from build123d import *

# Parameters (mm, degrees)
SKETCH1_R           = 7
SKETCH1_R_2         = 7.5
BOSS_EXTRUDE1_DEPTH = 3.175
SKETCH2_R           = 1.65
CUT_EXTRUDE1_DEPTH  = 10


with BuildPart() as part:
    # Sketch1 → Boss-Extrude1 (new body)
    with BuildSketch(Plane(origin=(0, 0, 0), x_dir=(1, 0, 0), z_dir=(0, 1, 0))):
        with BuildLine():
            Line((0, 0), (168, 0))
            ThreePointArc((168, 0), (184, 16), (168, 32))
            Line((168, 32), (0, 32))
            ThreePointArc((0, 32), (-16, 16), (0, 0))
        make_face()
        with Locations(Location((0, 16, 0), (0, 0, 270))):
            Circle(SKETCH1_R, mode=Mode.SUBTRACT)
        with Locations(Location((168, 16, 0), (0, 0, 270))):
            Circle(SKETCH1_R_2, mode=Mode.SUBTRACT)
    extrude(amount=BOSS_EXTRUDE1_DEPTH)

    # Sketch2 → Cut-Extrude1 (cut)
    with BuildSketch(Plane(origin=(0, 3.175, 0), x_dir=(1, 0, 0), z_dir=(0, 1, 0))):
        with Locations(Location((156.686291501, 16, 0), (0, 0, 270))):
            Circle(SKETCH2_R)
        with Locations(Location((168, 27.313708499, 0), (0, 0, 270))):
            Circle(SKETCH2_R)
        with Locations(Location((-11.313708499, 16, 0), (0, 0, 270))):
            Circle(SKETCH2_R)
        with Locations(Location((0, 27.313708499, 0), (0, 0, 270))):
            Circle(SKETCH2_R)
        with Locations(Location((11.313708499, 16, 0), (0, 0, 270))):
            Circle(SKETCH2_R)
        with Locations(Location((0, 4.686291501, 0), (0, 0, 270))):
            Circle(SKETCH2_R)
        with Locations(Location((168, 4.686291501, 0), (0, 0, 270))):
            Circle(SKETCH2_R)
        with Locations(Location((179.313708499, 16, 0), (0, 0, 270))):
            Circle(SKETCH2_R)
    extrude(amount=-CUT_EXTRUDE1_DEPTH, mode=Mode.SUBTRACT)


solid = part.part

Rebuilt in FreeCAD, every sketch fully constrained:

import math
import FreeCAD as App
import Part
import Sketcher

V = App.Vector

doc = App.newDocument("Part")
body = doc.addObject("PartDesign::Body", "Body")

# Sketch on XZ plane
sketch1 = body.newObject("Sketcher::SketchObject", "Sketch")
sketch1.AttachmentSupport = (doc.getObject("XZ_Plane"), [""])
sketch1.MapMode = "FlatFace"
sketch1.addGeometry([
    Part.LineSegment(V(0, 0, 0), V(168, 0, 0)),  # 0
    Part.ArcOfCircle(Part.Circle(V(168, -16, 0), V(0, 0, 1), 16), math.radians(-90), math.radians(90)),  # 1
    Part.LineSegment(V(168, -32, 0), V(0, -32, 0)),  # 2
    Part.ArcOfCircle(Part.Circle(V(0, -16, 0), V(0, 0, 1), 16), math.radians(90), math.radians(270)),  # 3
    Part.Circle(V(0, -16, 0), V(0, 0, 1), 7),  # 4
    Part.Circle(V(168, -16, 0), V(0, 0, 1), 8),  # 5
], False)
sketch1.addConstraint([
    Sketcher.Constraint("Tangent", 0, 2, 1, 2),
    Sketcher.Constraint("Tangent", 1, 1, 2, 1),
    Sketcher.Constraint("Tangent", 2, 2, 3, 2),
    Sketcher.Constraint("Tangent", 3, 1, 0, 1),
    Sketcher.Constraint("Horizontal", 0),
    Sketcher.Constraint("Horizontal", 2),
    Sketcher.Constraint("Coincident", 3, 1, -1, 1),
    Sketcher.Constraint("Coincident", 4, 3, 3, 3),
    Sketcher.Constraint("Coincident", 5, 3, 1, 3),
    Sketcher.Constraint("Diameter", 4, 14.0),
    Sketcher.Constraint("Diameter", 5, 15.0),
    Sketcher.Constraint("Radius", 1, 16.0),
    Sketcher.Constraint("DistanceX", 0, 1, 0, 2, 168.0),
])
pad1 = body.newObject("PartDesign::Pad", "Pad")
pad1.Profile = sketch1
pad1.Length = 3.175
pad1.Reversed = True

# Sketch on XZ plane
sketch2 = body.newObject("Sketcher::SketchObject", "Sketch001")
sketch2.AttachmentSupport = (doc.getObject("XZ_Plane"), [""])
sketch2.MapMode = "FlatFace"
sketch2.AttachmentOffset = App.Placement(V(0, 0, -3.175), App.Rotation())
sketch2.addGeometry([
    Part.Circle(V(156.7, -16, 0), V(0, 0, 1), 1.6),  # 0
    Part.Circle(V(168, -27.3, 0), V(0, 0, 1), 1.6),  # 1
    Part.Circle(V(-11.3, -16, 0), V(0, 0, 1), 1.6),  # 2
    Part.Circle(V(0, -27.3, 0), V(0, 0, 1), 1.6),  # 3
    Part.Circle(V(11.3, -16, 0), V(0, 0, 1), 1.6),  # 4
    Part.Circle(V(0, -4.7, 0), V(0, 0, 1), 1.6),  # 5
    Part.Circle(V(168, -4.7, 0), V(0, 0, 1), 1.6),  # 6
    Part.Circle(V(179.3, -16, 0), V(0, 0, 1), 1.6),  # 7
], False)
sketch2.addConstraint([
    Sketcher.Constraint("Equal", 0, 1),
    Sketcher.Constraint("Equal", 1, 2),
    Sketcher.Constraint("Equal", 2, 3),
    Sketcher.Constraint("Equal", 3, 4),
    Sketcher.Constraint("Equal", 4, 5),
    Sketcher.Constraint("Equal", 5, 6),
    Sketcher.Constraint("Equal", 6, 7),
    Sketcher.Constraint("Symmetric", 2, 3, 4, 3, -2),
    Sketcher.Constraint("PointOnObject", 3, 3, -2),
    Sketcher.Constraint("PointOnObject", 5, 3, -2),
    Sketcher.Constraint("Horizontal", 0, 3, 2, 3),
    Sketcher.Constraint("Horizontal", 1, 3, 3, 3),
    Sketcher.Constraint("Horizontal", 5, 3, 6, 3),
    Sketcher.Constraint("Horizontal", 4, 3, 7, 3),
    Sketcher.Constraint("Vertical", 1, 3, 6, 3),
    Sketcher.Constraint("Diameter", 0, 3.3),
    Sketcher.Constraint("DistanceY", 0, 3, -1, 1, 16.0),
    Sketcher.Constraint("DistanceX", -1, 1, 1, 3, 168.0),
    Sketcher.Constraint("DistanceX", 2, 3, 0, 3, 168.0),
    Sketcher.Constraint("DistanceX", 4, 3, 7, 3, 168.0),
    Sketcher.Constraint("DistanceX", -1, 1, 0, 3, 156.686292),
    Sketcher.Constraint("DistanceY", 1, 3, -1, 1, 27.313708),
    Sketcher.Constraint("DistanceY", 5, 3, -1, 1, 4.686292),
])
pocket1 = body.newObject("PartDesign::Pocket", "Pocket")
pocket1.Profile = sketch2
pocket1.Length = 10
pocket1.Reversed = True

doc.recompute()
